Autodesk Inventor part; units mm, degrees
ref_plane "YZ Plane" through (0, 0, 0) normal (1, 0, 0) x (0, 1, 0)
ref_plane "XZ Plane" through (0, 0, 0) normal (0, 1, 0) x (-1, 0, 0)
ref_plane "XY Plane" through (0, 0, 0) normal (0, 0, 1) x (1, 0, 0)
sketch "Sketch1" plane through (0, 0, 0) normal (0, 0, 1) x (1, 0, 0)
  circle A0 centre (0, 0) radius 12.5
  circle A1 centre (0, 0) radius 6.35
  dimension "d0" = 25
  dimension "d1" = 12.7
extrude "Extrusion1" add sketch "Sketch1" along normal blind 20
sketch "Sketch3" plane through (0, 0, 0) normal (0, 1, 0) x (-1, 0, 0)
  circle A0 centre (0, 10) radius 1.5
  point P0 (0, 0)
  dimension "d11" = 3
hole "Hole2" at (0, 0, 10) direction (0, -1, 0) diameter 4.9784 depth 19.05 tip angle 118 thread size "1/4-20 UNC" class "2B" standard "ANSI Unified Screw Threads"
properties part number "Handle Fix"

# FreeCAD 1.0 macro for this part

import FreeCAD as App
import Part
import Sketcher

V = App.Vector
Q = App.Units.Quantity

doc = App.newDocument("Part")
body = doc.addObject("PartDesign::Body", "Body")

# Sketch on XY plane
sketch1 = doc.addObject("Sketcher::SketchObject", "Sketch")
body.addObject(sketch1)
sketch1.AttachmentSupport = (doc.XY_Plane, [""])
sketch1.MapMode = "FlatFace"
sketch1.addGeometry([
    Part.Circle(V(0, 0, 0), V(0, 0, 1), 12.5),
    Part.Circle(V(0, 0, 0), V(0, 0, 1), 6.35),
], False)
sketch1.addConstraint([
    Sketcher.Constraint("Coincident", 0, 3, -1, 1),
    Sketcher.Constraint("Coincident", 1, 3, -1, 1),
    Sketcher.Constraint("Diameter", 1, Q("0.5 in")),
    Sketcher.Constraint("Diameter", 0, 25.0),
])
pad1 = doc.addObject("PartDesign::Pad", "Pad")
body.addObject(pad1)
pad1.Profile = sketch1
pad1.Length = Q("0.7874016 in")

# Sketch on XZ plane
sketch2 = doc.addObject("Sketcher::SketchObject", "Sketch001")
body.addObject(sketch2)
sketch2.AttachmentSupport = (doc.XZ_Plane, [""])
sketch2.MapMode = "FlatFace"
sketch2.addGeometry(Part.Circle(V(0, 10, 0), V(0, 0, 1), 2.4892), False)
sketch2.addConstraint([
    Sketcher.Constraint("PointOnObject", 0, 3, -2),
    Sketcher.Constraint("Diameter", 0, Q("0.196 in")),
    Sketcher.Constraint("DistanceY", -1, 1, 0, 3, Q("0.3937 in")),
])
doc.recompute()
hole = doc.addObject("PartDesign::Hole", "Hole")
body.addObject(hole)
hole.Profile = sketch2
hole.ThreadType = "None"
hole.Diameter = Q("0.196 in")
hole.DepthType = "Dimension"
hole.Depth = Q("0.75 in")
hole.DrillPoint = "Angled"
hole.DrillPointAngle = 118
hole.Reversed = True

doc.recompute()
